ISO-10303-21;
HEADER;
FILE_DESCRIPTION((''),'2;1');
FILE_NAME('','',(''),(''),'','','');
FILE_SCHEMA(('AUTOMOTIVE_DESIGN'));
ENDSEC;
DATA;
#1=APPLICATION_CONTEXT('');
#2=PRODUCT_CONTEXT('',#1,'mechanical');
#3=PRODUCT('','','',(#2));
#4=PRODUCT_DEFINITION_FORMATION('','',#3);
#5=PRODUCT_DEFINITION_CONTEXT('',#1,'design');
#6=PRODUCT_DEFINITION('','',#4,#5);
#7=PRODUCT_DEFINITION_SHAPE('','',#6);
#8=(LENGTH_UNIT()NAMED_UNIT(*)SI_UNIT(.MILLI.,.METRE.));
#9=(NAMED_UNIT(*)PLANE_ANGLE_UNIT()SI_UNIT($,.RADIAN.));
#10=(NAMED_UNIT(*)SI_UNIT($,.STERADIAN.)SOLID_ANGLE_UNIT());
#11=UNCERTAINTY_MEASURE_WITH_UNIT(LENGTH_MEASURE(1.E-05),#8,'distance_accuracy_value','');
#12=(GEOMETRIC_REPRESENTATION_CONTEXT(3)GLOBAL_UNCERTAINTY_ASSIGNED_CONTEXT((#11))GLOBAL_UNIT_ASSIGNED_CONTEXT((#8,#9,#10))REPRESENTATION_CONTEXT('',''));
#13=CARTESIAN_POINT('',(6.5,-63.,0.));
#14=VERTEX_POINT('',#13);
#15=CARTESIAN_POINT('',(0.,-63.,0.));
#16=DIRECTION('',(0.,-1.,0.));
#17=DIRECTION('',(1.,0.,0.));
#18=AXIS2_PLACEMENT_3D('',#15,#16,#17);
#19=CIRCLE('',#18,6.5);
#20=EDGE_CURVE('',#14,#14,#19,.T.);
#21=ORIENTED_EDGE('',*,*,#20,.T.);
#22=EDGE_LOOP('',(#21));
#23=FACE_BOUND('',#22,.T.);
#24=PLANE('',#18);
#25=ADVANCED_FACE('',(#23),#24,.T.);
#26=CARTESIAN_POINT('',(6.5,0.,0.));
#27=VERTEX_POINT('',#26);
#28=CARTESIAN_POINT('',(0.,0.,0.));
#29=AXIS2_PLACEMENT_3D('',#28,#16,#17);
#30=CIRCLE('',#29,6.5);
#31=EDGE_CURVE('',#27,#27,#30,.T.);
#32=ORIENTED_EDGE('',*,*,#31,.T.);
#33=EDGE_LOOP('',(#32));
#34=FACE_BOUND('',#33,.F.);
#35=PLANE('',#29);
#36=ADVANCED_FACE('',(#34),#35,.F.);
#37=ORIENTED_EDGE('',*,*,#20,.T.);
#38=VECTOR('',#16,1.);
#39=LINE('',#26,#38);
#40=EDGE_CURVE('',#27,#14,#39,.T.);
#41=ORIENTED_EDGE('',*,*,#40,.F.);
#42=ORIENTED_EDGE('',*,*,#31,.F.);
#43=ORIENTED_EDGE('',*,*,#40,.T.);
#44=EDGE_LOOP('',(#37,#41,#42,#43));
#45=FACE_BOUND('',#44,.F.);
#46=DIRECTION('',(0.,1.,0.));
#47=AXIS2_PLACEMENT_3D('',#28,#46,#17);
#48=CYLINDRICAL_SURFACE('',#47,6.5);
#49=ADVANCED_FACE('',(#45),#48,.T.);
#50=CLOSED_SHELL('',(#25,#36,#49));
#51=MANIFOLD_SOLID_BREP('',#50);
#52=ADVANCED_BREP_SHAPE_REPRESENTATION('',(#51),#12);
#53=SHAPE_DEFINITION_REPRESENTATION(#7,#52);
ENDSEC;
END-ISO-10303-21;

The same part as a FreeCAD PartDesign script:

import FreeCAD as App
import Part
import Sketcher
Q = App.Units.Quantity

doc = App.newDocument("Part")
body = doc.addObject("PartDesign::Body", "Body")

sketch1 = body.newObject("Sketcher::SketchObject", "Sketch")
sketch1.AttachmentSupport = (doc.getObject("XZ_Plane"), [""])
sketch1.MapMode = "FlatFace"
sketch1.addGeometry(Part.Circle(App.Vector(0, 0, 0), App.Vector(0, 0, 1), 6), False)
sketch1.addConstraint([
    Sketcher.Constraint("Coincident", 0, 3, -1, 1),
    Sketcher.Constraint("Diameter", 0, Q("13 mm")),
])
pad1 = body.newObject("PartDesign::Pad", "Pad")
pad1.Profile = sketch1
pad1.Length = 63

doc.recompute()
